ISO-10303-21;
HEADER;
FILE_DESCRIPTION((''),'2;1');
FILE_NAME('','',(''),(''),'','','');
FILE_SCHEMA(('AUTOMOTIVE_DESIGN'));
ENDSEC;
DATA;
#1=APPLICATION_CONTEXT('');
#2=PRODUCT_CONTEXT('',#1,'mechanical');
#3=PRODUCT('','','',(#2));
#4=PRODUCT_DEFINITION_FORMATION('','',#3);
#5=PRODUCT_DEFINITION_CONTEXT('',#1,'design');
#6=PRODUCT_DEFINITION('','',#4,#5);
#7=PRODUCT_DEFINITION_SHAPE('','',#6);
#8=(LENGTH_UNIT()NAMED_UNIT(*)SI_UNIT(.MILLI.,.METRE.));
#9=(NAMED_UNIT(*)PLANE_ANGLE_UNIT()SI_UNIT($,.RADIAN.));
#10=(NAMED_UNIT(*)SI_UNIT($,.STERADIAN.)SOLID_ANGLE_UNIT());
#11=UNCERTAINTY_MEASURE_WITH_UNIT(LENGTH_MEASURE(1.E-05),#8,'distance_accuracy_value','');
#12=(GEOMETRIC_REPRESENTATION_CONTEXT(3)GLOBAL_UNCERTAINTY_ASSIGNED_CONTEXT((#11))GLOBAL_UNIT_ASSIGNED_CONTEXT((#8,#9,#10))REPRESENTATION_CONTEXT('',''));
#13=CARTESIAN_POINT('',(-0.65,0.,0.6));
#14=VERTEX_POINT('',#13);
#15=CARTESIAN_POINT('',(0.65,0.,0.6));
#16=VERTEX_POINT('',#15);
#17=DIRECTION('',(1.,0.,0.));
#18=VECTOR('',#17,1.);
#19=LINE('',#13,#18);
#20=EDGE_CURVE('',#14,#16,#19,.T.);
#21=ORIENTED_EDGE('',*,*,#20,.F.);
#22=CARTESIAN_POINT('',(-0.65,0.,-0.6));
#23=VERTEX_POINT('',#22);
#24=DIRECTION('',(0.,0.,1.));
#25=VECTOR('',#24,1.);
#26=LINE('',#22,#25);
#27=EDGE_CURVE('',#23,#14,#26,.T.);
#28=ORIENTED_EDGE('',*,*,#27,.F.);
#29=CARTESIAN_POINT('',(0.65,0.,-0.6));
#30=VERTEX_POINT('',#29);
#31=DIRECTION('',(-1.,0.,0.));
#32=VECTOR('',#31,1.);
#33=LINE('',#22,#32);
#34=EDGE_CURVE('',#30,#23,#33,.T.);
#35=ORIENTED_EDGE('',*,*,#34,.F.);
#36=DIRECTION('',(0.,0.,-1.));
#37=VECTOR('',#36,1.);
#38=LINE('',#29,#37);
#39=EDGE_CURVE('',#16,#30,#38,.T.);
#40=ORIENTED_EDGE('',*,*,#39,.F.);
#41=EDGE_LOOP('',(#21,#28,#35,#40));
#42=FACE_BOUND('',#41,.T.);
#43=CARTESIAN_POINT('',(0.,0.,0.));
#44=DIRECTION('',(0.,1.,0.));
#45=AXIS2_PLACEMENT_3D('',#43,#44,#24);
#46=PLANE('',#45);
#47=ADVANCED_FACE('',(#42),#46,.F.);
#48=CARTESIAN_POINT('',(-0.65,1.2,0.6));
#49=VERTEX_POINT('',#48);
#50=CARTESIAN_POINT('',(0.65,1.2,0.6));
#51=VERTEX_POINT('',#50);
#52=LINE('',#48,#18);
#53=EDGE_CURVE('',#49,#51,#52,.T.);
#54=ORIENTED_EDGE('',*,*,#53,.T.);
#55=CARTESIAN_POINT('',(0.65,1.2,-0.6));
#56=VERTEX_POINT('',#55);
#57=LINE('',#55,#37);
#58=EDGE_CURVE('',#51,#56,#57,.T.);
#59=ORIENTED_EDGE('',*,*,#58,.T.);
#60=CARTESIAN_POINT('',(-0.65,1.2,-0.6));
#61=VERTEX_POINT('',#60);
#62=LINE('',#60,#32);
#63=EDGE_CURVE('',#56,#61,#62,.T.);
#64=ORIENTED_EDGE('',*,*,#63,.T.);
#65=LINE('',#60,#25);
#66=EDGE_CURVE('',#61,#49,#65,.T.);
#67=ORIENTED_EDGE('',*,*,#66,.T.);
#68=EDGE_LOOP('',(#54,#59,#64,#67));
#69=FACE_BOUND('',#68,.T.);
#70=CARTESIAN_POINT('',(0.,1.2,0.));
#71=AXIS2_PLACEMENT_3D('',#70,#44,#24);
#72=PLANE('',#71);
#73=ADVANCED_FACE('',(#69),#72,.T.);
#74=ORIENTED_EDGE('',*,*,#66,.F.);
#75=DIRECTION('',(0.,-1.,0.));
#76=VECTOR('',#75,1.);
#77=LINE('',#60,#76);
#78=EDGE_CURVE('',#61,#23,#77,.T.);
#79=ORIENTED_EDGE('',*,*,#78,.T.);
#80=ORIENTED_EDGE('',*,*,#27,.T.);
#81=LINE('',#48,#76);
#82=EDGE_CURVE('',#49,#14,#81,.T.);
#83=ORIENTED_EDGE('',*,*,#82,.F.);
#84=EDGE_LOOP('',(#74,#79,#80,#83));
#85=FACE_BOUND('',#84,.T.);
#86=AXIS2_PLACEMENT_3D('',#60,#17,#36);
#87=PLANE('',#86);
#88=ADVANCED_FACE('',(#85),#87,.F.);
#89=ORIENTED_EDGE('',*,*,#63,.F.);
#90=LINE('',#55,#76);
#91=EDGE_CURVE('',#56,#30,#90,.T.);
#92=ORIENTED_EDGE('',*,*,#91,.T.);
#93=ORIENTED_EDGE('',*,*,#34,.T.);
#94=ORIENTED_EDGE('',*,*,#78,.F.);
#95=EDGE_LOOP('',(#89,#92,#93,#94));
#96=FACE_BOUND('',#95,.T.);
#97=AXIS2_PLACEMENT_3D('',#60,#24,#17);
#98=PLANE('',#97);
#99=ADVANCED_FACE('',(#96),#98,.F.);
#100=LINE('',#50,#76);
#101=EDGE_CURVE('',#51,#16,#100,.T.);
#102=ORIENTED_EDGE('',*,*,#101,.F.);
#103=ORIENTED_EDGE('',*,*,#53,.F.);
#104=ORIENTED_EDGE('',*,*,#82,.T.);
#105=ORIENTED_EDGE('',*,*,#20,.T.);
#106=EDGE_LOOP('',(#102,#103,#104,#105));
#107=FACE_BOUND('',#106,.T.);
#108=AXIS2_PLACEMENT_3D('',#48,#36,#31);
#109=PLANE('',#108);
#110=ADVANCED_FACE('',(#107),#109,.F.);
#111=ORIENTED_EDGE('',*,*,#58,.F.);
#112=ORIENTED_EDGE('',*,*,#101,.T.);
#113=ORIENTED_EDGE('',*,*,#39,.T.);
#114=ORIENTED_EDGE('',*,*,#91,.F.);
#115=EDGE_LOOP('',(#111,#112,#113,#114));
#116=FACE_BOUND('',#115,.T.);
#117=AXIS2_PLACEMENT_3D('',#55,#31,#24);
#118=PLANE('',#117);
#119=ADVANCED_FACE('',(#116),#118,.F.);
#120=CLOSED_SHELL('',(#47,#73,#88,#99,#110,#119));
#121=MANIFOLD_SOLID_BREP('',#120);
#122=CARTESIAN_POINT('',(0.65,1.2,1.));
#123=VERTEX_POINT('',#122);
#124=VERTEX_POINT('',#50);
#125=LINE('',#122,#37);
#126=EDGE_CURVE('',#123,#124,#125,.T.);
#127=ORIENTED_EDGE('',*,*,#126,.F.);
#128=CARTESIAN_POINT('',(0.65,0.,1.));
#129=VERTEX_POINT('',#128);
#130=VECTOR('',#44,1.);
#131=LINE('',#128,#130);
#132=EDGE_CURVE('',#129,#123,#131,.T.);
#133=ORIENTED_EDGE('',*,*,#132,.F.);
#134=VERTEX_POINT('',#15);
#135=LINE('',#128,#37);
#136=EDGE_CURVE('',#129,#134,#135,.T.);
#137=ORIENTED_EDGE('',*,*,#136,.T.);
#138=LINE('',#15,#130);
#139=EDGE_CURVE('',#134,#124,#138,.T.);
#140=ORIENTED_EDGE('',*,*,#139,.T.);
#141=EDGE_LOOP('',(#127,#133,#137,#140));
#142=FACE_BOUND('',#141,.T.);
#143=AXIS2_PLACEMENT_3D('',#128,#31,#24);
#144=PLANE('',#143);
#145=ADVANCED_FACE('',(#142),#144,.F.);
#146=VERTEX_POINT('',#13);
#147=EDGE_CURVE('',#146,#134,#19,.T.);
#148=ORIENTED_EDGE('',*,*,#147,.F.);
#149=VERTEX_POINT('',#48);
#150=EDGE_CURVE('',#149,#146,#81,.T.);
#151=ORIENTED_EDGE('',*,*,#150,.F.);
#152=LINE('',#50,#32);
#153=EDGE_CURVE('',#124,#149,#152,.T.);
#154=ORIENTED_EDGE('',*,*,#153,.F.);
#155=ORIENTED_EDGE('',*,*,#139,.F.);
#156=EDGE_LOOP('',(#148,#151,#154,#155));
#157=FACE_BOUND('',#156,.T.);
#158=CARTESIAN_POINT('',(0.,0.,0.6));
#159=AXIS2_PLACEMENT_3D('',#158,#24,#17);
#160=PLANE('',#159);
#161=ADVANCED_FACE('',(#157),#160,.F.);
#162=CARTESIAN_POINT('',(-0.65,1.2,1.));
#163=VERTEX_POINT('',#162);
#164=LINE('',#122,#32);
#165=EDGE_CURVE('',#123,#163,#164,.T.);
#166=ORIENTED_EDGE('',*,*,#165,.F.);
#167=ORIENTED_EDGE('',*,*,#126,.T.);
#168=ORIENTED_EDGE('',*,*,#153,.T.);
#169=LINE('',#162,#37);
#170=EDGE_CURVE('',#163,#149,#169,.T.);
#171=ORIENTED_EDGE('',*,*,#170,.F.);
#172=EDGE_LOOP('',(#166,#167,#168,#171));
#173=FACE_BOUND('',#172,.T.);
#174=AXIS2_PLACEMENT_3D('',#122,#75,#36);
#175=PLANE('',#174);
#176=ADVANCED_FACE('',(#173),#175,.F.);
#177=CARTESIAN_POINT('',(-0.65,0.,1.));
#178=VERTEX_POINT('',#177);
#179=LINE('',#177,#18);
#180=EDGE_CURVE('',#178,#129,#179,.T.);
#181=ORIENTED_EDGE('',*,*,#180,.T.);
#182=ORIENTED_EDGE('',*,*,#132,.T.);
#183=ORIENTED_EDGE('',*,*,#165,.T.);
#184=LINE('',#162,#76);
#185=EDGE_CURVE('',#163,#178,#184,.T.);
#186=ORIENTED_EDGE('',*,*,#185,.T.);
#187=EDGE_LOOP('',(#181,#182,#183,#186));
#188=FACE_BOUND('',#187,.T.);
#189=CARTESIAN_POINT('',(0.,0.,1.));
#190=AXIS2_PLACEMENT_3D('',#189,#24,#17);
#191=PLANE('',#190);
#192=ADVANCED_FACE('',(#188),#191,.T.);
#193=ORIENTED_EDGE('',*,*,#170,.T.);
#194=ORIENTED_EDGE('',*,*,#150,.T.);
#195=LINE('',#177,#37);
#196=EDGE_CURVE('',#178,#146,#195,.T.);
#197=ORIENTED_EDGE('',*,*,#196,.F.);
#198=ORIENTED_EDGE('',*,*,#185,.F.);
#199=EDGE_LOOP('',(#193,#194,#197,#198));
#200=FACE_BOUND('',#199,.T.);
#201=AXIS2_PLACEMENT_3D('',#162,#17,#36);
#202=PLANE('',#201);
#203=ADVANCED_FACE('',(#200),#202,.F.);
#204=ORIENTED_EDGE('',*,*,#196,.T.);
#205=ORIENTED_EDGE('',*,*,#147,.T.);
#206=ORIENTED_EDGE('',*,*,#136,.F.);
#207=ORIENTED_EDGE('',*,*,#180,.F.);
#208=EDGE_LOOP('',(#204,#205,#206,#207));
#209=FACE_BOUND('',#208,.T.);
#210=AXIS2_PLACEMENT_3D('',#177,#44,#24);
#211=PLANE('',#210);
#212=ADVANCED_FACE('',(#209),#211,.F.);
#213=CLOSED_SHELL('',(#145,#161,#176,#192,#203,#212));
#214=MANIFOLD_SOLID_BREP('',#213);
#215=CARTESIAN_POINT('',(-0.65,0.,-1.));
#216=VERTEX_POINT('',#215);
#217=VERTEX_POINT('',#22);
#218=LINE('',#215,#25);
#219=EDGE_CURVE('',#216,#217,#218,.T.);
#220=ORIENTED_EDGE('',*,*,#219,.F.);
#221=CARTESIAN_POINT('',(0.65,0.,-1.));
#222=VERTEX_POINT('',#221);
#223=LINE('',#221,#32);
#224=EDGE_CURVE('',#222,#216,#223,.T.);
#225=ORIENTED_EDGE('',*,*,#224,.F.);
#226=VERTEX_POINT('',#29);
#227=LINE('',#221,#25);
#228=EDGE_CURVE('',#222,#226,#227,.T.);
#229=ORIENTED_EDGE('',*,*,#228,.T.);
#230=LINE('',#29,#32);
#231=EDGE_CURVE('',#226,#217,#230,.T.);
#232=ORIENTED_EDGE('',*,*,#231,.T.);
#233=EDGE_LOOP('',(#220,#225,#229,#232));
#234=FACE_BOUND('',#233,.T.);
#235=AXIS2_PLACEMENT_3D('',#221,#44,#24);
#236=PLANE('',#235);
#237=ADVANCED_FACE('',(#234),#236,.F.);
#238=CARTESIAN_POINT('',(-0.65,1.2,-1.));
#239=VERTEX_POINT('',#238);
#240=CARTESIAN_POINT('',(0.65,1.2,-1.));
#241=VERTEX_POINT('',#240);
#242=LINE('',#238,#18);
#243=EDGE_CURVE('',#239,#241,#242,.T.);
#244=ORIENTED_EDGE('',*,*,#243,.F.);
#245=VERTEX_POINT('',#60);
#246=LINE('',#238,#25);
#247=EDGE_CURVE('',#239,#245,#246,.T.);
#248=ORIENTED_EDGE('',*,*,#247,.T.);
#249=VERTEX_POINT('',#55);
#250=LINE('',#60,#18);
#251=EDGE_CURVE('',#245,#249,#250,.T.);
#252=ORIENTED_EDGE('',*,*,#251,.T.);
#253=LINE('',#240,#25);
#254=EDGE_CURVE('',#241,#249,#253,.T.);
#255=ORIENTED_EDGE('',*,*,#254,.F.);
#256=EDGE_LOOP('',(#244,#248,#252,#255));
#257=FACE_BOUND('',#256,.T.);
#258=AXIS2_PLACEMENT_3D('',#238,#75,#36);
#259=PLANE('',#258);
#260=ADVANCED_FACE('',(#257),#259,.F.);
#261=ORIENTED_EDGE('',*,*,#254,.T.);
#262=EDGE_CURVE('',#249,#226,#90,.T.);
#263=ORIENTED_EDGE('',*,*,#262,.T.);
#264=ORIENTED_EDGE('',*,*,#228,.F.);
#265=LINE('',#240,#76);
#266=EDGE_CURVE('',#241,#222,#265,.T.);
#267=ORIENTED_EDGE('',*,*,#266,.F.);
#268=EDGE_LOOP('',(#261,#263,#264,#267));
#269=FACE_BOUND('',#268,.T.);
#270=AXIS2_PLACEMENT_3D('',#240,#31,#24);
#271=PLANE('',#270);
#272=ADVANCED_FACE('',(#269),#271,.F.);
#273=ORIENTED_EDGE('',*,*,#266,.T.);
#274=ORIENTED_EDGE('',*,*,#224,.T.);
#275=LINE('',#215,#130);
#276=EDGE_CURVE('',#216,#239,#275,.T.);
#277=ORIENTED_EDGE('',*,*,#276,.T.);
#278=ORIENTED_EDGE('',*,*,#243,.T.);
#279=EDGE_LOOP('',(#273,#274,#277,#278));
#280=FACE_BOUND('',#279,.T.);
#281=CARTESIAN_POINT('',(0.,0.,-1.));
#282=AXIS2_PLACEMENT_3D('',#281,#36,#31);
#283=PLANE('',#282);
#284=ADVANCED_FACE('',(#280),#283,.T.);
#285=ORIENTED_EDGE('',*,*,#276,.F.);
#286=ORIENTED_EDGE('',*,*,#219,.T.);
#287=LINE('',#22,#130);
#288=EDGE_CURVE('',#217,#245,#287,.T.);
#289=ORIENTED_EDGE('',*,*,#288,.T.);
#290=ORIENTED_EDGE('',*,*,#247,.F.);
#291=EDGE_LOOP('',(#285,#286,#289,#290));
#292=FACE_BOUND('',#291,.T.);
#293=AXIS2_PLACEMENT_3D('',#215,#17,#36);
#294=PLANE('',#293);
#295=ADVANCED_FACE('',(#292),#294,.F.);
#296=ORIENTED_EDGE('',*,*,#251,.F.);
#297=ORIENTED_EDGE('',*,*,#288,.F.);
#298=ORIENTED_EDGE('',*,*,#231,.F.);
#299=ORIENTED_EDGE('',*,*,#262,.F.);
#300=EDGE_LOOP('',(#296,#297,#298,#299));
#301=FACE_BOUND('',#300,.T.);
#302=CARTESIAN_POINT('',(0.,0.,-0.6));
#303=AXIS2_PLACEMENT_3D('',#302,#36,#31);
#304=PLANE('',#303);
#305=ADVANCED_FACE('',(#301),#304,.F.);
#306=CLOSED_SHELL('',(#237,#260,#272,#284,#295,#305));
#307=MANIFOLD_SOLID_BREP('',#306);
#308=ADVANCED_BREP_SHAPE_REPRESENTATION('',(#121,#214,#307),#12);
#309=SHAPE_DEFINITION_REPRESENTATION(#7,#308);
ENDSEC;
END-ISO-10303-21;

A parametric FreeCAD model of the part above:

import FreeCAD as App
import Part
import Sketcher
Q = App.Units.Quantity


def add_polygon(sketch, points):
    """Adds a closed chain of lines whose ends are joined by coincident constraints."""
    first, n = sketch.GeometryCount, len(points)
    for a, b in zip(points, points[1:] + points[:1]):
        sketch.addGeometry(Part.LineSegment(App.Vector(*a, 0), App.Vector(*b, 0)), False)
    for i in range(n):
        sketch.addConstraint(Sketcher.Constraint("Coincident", first + i, 2, first + (i + 1) % n, 1))

doc = App.newDocument("Part")
body = doc.addObject("PartDesign::Body", "Body")

# Sketch on XZ plane
sketch1 = body.newObject("Sketcher::SketchObject", "Sketch")
sketch1.AttachmentSupport = (doc.getObject("XZ_Plane"), [""])
sketch1.MapMode = "FlatFace"
add_polygon(sketch1, [(-0.7, -0.6), (-0.7, 0.6), (0.7, 0.6), (0.7, -0.6)])  # lines 0-3
sketch1.addConstraint([
    Sketcher.Constraint("Vertical", 0),
    Sketcher.Constraint("Horizontal", 1),
    Sketcher.Constraint("Vertical", 2),
    Sketcher.Constraint("Horizontal", 3),
    Sketcher.Constraint("Symmetric", 0, 2, 2, 2, -1, 1),
    Sketcher.Constraint("DistanceX", 1, 1, 1, 2, Q("1.3 mm")),
    Sketcher.Constraint("DistanceY", 0, 1, 0, 2, Q("1.2 mm")),
])
pad1 = body.newObject("PartDesign::Pad", "Pad")
pad1.Profile = sketch1
pad1.Length = 1.2
pad1.Reversed = True
body2 = doc.addObject("PartDesign::Body", "Body001")

# Sketch on XY plane
sketch2 = body2.newObject("Sketcher::SketchObject", "Sketch001")
sketch2.AttachmentSupport = (doc.getObject("XY_Plane001"), [""])
sketch2.MapMode = "FlatFace"
sketch2.AttachmentOffset = App.Placement(App.Vector(0, 0, 0.6), App.Rotation())
add_polygon(sketch2, [(-0.7, 1.2), (-0.7, 0), (0.7, 0), (0.7, 1.2)])  # lines 0-3
sketch2.addConstraint([
    Sketcher.Constraint("Vertical", 0),
    Sketcher.Constraint("Horizontal", 1),
    Sketcher.Constraint("Vertical", 2),
    Sketcher.Constraint("Horizontal", 3),
    Sketcher.Constraint("Symmetric", 0, 2, 1, 2, -1, 1),
    Sketcher.Constraint("DistanceX", 1, 1, 1, 2, Q("1.3 mm")),
    Sketcher.Constraint("DistanceY", 0, 2, 0, 1, Q("1.2 mm")),
])
pad2 = body2.newObject("PartDesign::Pad", "Pad001")
pad2.Profile = sketch2
pad2.Length = 0.4
body3 = doc.addObject("PartDesign::Body", "Body002")

# Sketch on XY plane
sketch3 = body3.newObject("Sketcher::SketchObject", "Sketch002")
sketch3.AttachmentSupport = (doc.getObject("XY_Plane002"), [""])
sketch3.MapMode = "FlatFace"
sketch3.AttachmentOffset = App.Placement(App.Vector(0, 0, -0.6), App.Rotation())
add_polygon(sketch3, [(0.7, 1.2), (0.7, 0), (-0.7, 0), (-0.7, 1.2)])  # lines 0-3
sketch3.addConstraint([
    Sketcher.Constraint("Vertical", 0),
    Sketcher.Constraint("Horizontal", 1),
    Sketcher.Constraint("Vertical", 2),
    Sketcher.Constraint("Horizontal", 3),
    Sketcher.Constraint("Symmetric", 0, 2, 1, 2, -1, 1),
    Sketcher.Constraint("DistanceX", 1, 2, 1, 1, Q("1.3 mm")),
    Sketcher.Constraint("DistanceY", 0, 2, 0, 1, Q("1.2 mm")),
])
pad3 = body3.newObject("PartDesign::Pad", "Pad002")
pad3.Profile = sketch3
pad3.Length = 0.4
pad3.Reversed = True

doc.recompute()
